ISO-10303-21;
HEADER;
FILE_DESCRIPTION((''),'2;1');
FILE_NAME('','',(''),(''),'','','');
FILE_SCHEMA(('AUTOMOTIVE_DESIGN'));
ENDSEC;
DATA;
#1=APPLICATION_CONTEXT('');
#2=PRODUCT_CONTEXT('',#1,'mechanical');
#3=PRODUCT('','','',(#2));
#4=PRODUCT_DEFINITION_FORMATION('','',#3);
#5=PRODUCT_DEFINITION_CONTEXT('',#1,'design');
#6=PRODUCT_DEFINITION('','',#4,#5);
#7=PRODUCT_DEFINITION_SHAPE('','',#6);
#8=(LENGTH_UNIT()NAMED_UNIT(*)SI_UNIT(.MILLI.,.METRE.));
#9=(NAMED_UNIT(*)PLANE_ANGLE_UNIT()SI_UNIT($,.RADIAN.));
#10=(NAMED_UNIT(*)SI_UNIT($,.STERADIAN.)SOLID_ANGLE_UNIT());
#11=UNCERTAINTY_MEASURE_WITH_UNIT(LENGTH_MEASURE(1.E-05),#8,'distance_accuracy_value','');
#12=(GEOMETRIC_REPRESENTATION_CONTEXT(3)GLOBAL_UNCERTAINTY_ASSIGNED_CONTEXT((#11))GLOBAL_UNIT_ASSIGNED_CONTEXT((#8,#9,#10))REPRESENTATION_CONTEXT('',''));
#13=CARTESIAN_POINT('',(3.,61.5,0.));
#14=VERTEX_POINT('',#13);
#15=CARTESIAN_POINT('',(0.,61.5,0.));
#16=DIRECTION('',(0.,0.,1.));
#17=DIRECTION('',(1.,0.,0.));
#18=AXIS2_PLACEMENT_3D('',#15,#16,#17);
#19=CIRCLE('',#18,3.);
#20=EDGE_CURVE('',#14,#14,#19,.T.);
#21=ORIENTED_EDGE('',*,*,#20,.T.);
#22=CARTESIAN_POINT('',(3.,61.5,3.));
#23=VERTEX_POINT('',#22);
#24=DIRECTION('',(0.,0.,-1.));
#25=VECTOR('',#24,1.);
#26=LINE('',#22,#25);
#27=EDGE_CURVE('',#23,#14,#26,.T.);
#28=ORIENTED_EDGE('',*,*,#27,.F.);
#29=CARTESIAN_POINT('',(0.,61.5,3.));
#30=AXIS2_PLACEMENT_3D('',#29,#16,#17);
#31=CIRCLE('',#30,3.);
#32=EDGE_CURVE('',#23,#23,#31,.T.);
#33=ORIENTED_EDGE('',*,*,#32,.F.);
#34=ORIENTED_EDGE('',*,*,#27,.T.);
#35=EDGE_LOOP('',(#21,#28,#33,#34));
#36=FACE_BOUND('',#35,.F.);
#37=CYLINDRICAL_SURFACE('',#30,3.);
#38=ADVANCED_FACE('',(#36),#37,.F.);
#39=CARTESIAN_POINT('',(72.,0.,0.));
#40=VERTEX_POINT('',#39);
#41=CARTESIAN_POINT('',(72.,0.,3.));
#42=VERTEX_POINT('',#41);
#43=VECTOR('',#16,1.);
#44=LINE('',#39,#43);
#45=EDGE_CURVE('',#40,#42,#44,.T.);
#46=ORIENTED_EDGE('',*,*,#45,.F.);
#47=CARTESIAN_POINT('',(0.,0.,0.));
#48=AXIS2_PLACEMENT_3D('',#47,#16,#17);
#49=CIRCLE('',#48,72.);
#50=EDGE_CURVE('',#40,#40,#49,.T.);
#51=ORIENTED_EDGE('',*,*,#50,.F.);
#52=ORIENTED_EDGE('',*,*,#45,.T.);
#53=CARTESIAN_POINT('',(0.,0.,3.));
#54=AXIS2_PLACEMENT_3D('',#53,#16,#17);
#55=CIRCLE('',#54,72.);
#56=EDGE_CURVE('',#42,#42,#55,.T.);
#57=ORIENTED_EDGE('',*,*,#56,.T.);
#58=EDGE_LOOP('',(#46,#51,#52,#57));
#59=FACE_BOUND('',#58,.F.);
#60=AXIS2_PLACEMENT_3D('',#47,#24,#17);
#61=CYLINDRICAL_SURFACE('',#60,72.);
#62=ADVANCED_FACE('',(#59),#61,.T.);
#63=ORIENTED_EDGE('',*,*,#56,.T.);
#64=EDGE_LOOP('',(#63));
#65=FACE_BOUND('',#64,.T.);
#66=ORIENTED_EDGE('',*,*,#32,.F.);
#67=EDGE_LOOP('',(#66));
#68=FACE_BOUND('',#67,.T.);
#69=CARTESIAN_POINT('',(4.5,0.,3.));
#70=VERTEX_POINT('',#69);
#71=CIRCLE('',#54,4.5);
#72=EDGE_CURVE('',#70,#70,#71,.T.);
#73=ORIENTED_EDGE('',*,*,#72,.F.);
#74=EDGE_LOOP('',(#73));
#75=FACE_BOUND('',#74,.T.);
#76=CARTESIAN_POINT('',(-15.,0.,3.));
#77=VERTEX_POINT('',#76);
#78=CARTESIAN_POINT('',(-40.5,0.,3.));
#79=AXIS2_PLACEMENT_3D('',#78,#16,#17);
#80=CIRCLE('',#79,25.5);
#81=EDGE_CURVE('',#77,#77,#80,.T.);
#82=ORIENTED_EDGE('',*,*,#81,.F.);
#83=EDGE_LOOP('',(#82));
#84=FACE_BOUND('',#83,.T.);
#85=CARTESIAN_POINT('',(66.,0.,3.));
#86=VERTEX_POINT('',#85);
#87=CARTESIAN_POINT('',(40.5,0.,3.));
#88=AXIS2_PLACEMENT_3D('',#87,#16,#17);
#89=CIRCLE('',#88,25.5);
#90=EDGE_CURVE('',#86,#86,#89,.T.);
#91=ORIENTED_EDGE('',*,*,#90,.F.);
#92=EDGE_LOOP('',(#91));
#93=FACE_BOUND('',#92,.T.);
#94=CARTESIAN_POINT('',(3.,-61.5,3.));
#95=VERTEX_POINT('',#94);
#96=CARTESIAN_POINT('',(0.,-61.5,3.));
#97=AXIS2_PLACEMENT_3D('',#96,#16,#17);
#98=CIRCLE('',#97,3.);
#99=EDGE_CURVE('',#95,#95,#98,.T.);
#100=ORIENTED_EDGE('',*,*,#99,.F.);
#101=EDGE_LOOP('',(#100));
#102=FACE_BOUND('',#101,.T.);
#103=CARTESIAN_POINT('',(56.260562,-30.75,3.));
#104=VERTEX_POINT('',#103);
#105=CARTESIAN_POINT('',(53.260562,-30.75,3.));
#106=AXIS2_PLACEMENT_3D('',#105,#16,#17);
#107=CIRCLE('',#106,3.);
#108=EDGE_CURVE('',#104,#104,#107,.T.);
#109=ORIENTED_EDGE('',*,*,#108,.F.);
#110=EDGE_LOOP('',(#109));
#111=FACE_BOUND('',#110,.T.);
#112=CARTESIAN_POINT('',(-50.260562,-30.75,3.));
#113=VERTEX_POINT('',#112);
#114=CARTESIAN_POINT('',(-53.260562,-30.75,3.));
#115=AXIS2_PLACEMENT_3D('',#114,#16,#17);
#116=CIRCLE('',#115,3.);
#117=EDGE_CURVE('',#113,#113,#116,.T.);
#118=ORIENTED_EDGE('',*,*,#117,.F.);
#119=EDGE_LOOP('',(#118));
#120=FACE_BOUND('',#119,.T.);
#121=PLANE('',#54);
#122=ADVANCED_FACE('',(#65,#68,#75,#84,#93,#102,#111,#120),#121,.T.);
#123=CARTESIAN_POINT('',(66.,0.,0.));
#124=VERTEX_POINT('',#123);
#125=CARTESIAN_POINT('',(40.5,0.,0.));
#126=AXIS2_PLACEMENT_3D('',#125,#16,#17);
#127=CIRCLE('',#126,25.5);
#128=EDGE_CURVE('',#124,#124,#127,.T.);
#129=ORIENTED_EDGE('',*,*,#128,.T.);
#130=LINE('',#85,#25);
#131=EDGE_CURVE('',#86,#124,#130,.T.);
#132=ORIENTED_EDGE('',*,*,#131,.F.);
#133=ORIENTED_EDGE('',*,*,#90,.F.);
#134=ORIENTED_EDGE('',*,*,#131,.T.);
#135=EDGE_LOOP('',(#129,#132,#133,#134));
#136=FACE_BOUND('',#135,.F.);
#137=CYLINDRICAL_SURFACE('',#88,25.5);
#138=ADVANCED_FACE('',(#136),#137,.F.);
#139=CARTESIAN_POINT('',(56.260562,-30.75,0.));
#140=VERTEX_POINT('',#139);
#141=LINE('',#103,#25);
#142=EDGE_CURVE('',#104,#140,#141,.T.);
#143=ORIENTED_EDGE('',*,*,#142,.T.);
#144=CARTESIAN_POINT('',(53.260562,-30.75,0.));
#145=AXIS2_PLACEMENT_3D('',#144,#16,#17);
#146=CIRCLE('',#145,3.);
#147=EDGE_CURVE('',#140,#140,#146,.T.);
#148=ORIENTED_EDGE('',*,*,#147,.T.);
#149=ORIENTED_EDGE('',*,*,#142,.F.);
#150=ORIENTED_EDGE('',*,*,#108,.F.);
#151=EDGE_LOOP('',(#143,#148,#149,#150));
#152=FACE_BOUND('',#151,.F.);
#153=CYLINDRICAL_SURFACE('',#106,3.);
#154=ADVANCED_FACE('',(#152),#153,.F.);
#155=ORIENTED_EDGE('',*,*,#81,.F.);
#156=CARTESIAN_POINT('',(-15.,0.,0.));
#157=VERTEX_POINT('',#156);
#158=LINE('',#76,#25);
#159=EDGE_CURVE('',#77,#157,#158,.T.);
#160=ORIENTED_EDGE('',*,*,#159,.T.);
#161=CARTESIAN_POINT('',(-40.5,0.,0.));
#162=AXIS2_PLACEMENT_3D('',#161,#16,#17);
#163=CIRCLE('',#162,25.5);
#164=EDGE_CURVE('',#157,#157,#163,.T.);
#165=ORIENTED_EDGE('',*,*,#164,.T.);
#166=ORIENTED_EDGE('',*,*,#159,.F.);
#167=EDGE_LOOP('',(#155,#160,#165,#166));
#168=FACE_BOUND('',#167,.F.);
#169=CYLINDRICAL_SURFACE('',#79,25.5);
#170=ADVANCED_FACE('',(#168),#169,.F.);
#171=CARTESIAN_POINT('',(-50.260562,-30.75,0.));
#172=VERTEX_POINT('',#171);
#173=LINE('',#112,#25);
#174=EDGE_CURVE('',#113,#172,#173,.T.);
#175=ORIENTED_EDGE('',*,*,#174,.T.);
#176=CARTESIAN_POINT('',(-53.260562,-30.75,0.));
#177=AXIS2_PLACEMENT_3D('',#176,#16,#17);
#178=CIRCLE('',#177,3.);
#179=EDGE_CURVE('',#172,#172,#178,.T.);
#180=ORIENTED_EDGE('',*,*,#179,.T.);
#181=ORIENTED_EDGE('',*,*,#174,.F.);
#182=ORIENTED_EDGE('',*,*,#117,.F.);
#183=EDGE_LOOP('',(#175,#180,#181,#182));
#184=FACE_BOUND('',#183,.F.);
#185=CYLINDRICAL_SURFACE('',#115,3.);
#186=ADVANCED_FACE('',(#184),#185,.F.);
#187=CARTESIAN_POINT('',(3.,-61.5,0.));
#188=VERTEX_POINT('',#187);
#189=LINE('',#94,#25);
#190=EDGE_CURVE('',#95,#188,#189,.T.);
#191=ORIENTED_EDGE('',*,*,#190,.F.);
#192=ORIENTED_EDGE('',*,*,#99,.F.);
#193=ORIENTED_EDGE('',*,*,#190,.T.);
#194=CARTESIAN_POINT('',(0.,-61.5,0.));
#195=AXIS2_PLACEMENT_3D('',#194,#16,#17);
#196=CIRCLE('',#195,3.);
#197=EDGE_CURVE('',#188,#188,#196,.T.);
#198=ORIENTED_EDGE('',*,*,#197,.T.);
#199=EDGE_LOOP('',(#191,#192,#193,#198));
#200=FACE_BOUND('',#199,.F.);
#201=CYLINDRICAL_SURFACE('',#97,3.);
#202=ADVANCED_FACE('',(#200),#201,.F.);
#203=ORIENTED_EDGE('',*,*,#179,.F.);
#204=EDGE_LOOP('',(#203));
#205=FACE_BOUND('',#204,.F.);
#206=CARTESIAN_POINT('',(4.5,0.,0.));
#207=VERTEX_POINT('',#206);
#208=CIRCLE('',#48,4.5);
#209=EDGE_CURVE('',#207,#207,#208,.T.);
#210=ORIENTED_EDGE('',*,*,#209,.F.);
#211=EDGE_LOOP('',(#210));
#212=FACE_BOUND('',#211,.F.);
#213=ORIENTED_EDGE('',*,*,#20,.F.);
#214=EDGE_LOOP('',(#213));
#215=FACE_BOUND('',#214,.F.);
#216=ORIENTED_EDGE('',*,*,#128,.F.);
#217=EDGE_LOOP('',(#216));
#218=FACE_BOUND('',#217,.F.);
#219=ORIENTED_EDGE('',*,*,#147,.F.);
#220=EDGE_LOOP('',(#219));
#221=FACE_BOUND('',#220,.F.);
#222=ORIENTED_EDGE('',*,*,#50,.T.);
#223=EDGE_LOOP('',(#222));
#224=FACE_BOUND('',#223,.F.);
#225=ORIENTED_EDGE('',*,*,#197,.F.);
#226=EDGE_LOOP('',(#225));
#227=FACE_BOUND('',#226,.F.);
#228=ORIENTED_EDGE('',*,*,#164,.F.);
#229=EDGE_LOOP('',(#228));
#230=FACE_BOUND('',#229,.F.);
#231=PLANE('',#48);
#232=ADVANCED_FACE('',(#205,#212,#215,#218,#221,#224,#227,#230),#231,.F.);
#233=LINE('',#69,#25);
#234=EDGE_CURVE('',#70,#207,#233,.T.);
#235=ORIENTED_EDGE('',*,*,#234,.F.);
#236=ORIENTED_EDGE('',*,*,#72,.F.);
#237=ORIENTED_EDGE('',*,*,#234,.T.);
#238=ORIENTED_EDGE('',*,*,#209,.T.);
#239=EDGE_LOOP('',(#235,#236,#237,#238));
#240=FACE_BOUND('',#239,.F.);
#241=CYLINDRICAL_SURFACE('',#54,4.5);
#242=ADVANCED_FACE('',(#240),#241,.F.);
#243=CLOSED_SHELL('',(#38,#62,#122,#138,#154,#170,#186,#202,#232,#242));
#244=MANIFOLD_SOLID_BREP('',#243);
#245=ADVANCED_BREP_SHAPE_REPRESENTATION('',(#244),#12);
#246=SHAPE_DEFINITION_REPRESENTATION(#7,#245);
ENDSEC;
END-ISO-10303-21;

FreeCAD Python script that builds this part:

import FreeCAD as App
import Part
import Sketcher

doc = App.newDocument("Part")
body = doc.addObject("PartDesign::Body", "Body")

# Sketch on XY plane
sketch1 = doc.addObject("Sketcher::SketchObject", "Sketch")
body.addObject(sketch1)
sketch1.AttachmentSupport = (doc.XY_Plane, [""])
sketch1.MapMode = "FlatFace"
sketch1.addGeometry(Part.Circle(App.Vector(0, 0, 0), App.Vector(0, 0, 1), 72), False)
sketch1.addConstraint(Sketcher.Constraint("Coincident", 0, 3, -1, 1))
sketch1.addConstraint(Sketcher.Constraint("Diameter", 0, 144.0))
pad1 = doc.addObject("PartDesign::Pad", "Pad")
body.addObject(pad1)
pad1.Profile = sketch1
pad1.Length = 3

# Sketch on XY plane
sketch2 = doc.addObject("Sketcher::SketchObject", "Sketch001")
body.addObject(sketch2)
sketch2.AttachmentSupport = (doc.XY_Plane, [""])
sketch2.MapMode = "FlatFace"
sketch2.AttachmentOffset = App.Placement(App.Vector(0, 0, 3), App.Rotation())
sketch2.addGeometry(Part.Circle(App.Vector(-40, 0, 0), App.Vector(0, 0, 1), 26), False)
sketch2.addGeometry(Part.Circle(App.Vector(40, 0, 0), App.Vector(0, 0, 1), 26), False)
sketch2.addConstraint(Sketcher.Constraint("Equal", 0, 1))
sketch2.addConstraint(Sketcher.Constraint("Symmetric", 0, 3, 1, 3, -1, 1))
sketch2.addConstraint(Sketcher.Constraint("PointOnObject", 0, 3, -1))
sketch2.addConstraint(Sketcher.Constraint("Diameter", 0, 51.0))
sketch2.addConstraint(Sketcher.Constraint("DistanceX", 0, 3, 1, 3, 81.0))
pocket1 = doc.addObject("PartDesign::Pocket", "Pocket")
body.addObject(pocket1)
pocket1.Profile = sketch2
pocket1.Length = 3

# Sketch on XY plane
sketch3 = doc.addObject("Sketcher::SketchObject", "Sketch002")
body.addObject(sketch3)
sketch3.AttachmentSupport = (doc.XY_Plane, [""])
sketch3.MapMode = "FlatFace"
sketch3.AttachmentOffset = App.Placement(App.Vector(0, 0, 3), App.Rotation())
sketch3.addGeometry(Part.Circle(App.Vector(0, 61.5, 0), App.Vector(0, 0, 1), 3), False)
sketch3.addGeometry(Part.Circle(App.Vector(0, 0, 0), App.Vector(0, 0, 1), 4.5), False)
sketch3.addGeometry(Part.Circle(App.Vector(0, -61.5, 0), App.Vector(0, 0, 1), 3), False)
sketch3.addConstraint(Sketcher.Constraint("Coincident", 1, 3, -1, 1))
sketch3.addConstraint(Sketcher.Constraint("Equal", 0, 2))
sketch3.addConstraint(Sketcher.Constraint("Symmetric", 0, 3, 2, 3, -1, 1))
sketch3.addConstraint(Sketcher.Constraint("PointOnObject", 0, 3, -2))
sketch3.addConstraint(Sketcher.Constraint("Diameter", 0, 6.0))
sketch3.addConstraint(Sketcher.Constraint("Diameter", 1, 9.0))
sketch3.addConstraint(Sketcher.Constraint("DistanceY", 2, 3, 0, 3, 123.0))
pocket2 = doc.addObject("PartDesign::Pocket", "Pocket001")
body.addObject(pocket2)
pocket2.Profile = sketch3
pocket2.Length = 25.4

# Sketch on XY plane
sketch4 = doc.addObject("Sketcher::SketchObject", "Sketch003")
body.addObject(sketch4)
sketch4.AttachmentSupport = (doc.XY_Plane, [""])
sketch4.MapMode = "FlatFace"
sketch4.AttachmentOffset = App.Placement(App.Vector(0, 0, 3), App.Rotation())
sketch4.addGeometry(Part.Circle(App.Vector(-53.3, -30.8, 0), App.Vector(0, 0, 1), 3), False)
sketch4.addGeometry(Part.Circle(App.Vector(53.3, -30.8, 0), App.Vector(0, 0, 1), 3), False)
sketch4.addConstraint(Sketcher.Constraint("Equal", 0, 1))
sketch4.addConstraint(Sketcher.Constraint("Symmetric", 0, 3, 1, 3, -2))
sketch4.addConstraint(Sketcher.Constraint("Diameter", 0, 6.0))
sketch4.addConstraint(Sketcher.Constraint("DistanceY", 0, 3, -1, 1, 30.75))
sketch4.addConstraint(Sketcher.Constraint("DistanceX", 0, 3, -1, 1, 53.260562))
pocket3 = doc.addObject("PartDesign::Pocket", "Pocket002")
body.addObject(pocket3)
pocket3.Profile = sketch4
pocket3.Length = 25.4

doc.recompute()
